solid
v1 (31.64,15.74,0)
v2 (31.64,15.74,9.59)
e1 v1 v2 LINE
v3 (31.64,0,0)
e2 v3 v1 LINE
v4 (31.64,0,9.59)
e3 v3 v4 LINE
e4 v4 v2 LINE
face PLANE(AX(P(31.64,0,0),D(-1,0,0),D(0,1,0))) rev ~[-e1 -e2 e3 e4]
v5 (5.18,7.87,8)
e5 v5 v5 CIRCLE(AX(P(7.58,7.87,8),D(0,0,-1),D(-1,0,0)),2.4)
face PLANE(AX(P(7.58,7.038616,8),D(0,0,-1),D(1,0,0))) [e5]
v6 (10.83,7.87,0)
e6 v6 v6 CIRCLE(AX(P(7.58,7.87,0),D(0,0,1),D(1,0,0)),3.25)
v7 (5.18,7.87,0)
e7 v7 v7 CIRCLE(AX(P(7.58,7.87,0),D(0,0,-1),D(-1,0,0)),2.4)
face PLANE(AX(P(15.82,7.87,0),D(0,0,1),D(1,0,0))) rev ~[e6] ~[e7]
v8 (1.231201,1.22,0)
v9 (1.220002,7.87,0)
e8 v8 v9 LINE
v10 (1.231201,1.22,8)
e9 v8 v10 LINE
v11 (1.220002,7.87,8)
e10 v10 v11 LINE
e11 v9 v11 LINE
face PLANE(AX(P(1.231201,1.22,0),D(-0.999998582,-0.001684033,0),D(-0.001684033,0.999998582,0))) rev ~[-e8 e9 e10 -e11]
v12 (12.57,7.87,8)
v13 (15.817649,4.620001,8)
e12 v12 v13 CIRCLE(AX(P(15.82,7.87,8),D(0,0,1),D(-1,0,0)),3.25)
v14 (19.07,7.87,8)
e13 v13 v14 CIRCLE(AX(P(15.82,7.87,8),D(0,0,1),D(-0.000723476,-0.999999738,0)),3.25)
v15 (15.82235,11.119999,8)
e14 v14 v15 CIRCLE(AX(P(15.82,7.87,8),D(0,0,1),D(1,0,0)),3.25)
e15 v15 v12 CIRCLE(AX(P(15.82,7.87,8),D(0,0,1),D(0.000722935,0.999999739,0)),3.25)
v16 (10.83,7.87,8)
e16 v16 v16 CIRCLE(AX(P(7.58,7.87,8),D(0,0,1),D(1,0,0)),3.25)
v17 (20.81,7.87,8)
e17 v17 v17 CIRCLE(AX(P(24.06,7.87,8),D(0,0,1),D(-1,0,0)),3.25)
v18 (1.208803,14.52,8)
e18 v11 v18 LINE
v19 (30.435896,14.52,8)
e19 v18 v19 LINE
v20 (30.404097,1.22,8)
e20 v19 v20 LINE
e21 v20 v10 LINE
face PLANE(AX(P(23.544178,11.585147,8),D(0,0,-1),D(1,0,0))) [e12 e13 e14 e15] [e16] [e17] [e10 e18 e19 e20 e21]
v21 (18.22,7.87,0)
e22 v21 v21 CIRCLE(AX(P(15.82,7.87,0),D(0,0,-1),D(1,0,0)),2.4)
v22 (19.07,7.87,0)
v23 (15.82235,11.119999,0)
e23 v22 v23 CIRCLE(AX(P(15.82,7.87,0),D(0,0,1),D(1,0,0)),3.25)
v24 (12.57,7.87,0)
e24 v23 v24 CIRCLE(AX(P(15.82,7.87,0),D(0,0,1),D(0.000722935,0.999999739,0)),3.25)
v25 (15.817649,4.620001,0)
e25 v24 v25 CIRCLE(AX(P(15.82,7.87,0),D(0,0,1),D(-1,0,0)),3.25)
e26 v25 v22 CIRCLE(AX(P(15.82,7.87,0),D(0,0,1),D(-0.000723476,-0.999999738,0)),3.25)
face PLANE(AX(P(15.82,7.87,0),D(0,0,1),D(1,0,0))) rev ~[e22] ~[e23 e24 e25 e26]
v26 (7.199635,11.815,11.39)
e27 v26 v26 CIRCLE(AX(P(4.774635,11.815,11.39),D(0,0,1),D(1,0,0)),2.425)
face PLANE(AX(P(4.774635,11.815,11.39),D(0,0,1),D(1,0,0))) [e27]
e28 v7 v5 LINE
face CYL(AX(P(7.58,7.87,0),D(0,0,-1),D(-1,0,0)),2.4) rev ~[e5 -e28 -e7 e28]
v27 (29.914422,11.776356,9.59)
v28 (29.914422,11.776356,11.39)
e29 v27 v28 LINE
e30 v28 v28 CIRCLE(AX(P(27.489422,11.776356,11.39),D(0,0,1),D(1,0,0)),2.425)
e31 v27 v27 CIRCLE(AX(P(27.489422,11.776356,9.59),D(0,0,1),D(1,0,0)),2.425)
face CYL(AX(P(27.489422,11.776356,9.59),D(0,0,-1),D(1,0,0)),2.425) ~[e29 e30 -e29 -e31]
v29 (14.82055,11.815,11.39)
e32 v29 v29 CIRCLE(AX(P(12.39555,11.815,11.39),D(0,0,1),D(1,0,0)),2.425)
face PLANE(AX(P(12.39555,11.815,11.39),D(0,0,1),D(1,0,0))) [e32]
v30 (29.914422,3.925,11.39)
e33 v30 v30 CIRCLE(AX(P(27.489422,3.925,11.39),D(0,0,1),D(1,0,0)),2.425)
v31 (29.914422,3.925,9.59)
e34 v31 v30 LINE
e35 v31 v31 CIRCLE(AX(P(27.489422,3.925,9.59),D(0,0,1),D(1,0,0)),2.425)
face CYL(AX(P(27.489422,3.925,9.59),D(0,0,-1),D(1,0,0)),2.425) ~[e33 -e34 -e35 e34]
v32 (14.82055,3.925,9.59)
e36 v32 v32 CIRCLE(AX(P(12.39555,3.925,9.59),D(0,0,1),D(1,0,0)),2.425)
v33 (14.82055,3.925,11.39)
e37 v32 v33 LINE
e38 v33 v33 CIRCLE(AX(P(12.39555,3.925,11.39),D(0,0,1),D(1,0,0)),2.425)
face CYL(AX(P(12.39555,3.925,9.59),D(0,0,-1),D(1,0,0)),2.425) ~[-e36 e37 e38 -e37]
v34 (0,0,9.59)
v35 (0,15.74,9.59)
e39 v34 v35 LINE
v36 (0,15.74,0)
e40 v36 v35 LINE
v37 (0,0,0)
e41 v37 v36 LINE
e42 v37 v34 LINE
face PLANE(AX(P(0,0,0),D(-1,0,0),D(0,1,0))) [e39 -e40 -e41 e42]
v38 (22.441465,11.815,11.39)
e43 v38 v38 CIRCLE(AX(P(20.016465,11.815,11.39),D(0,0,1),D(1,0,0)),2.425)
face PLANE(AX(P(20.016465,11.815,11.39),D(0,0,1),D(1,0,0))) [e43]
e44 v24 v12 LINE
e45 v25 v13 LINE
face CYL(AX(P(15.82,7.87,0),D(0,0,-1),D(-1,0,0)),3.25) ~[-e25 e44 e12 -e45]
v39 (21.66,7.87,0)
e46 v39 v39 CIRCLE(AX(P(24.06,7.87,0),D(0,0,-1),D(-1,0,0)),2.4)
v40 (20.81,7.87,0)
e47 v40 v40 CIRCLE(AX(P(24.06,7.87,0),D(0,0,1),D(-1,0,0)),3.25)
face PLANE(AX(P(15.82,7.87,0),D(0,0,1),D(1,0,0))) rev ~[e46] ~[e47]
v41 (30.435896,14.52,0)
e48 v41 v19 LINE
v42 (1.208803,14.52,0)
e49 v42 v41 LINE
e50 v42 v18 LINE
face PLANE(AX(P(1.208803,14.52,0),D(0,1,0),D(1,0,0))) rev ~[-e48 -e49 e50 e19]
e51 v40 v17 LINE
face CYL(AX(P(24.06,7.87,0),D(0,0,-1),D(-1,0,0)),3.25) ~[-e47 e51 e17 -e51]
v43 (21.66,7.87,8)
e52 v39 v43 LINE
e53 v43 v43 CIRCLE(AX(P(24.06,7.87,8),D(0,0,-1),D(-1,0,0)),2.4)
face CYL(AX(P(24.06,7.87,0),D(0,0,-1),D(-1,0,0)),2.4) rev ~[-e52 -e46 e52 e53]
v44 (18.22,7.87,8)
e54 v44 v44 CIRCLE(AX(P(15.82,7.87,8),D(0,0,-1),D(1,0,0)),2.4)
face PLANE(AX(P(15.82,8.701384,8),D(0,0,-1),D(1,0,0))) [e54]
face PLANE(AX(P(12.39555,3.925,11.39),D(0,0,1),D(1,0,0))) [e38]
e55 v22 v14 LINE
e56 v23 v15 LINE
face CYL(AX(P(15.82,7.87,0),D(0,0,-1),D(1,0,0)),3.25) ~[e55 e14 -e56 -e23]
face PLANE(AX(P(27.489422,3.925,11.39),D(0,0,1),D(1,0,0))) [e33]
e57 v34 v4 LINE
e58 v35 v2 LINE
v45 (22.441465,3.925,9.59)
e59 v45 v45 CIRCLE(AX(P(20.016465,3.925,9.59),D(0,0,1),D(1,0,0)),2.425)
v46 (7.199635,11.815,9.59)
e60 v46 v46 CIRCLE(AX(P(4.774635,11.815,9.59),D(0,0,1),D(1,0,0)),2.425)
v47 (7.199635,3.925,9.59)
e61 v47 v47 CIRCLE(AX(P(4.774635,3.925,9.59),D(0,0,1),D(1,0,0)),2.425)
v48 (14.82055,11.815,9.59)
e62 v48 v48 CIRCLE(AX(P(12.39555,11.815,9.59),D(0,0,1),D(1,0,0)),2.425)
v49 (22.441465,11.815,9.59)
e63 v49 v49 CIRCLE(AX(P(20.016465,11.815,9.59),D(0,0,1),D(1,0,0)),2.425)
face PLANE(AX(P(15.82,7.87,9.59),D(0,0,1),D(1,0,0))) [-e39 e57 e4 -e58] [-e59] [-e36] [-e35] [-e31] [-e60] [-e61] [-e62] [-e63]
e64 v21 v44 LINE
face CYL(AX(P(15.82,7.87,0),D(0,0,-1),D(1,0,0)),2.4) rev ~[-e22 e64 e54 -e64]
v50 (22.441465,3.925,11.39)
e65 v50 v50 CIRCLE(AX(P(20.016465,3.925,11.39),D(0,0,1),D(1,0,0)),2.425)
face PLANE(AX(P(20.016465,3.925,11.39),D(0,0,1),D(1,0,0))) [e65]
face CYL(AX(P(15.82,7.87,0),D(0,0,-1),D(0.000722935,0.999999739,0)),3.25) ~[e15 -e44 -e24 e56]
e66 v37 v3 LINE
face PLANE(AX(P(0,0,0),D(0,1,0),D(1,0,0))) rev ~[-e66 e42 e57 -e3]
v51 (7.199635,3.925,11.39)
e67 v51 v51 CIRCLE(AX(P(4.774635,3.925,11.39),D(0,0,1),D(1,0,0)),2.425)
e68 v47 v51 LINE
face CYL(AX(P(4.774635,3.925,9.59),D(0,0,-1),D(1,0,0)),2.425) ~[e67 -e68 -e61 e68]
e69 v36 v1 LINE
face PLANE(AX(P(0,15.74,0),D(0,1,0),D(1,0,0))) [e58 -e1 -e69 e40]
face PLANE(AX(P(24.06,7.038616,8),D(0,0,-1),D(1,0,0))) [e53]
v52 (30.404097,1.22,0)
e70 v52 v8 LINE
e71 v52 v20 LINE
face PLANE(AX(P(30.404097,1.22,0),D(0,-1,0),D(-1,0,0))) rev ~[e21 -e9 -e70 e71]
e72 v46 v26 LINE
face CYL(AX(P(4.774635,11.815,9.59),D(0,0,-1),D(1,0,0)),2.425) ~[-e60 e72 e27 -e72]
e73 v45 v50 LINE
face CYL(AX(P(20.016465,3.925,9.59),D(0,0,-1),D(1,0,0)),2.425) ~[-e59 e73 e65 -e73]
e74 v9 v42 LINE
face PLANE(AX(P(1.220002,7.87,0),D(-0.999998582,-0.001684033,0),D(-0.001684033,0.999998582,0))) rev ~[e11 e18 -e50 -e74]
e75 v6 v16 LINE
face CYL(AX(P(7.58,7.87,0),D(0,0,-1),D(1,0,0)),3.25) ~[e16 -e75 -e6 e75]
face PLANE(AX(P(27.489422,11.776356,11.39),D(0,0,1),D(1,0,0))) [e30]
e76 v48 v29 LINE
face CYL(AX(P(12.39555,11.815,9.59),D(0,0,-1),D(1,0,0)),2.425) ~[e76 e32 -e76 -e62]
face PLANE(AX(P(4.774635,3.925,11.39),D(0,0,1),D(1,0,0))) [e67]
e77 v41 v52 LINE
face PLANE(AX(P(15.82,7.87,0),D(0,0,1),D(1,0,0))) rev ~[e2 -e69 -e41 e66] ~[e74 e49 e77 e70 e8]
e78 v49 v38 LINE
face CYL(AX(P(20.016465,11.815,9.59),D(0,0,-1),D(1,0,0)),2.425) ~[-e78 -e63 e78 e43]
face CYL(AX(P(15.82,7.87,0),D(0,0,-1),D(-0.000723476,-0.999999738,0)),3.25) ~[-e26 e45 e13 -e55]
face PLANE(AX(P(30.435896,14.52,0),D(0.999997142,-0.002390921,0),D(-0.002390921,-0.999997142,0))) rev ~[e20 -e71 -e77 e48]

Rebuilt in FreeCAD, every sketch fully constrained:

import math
import FreeCAD as App
import Part
import Sketcher

V = App.Vector


def add_polygon(sketch, points):
    """Adds a closed chain of lines whose ends are joined by coincident constraints."""
    first, n = sketch.GeometryCount, len(points)
    for a, b in zip(points, points[1:] + points[:1]):
        sketch.addGeometry(Part.LineSegment(App.Vector(*a, 0), App.Vector(*b, 0)), False)
    for i in range(n):
        sketch.addConstraint(Sketcher.Constraint("Coincident", first + i, 2, first + (i + 1) % n, 1))

doc = App.newDocument("Part")
body = doc.addObject("PartDesign::Body", "Body")

# Sketch on XY plane
sketch1 = body.newObject("Sketcher::SketchObject", "Sketch")
sketch1.AttachmentSupport = (doc.getObject("XY_Plane"), [""])
sketch1.MapMode = "FlatFace"
add_polygon(sketch1, [(0, 15.74), (0, 0), (31.64, 0), (31.64, 15.74)])  # lines 0-3
sketch1.addConstraint([
    Sketcher.Constraint("Vertical", 0),
    Sketcher.Constraint("Horizontal", 1),
    Sketcher.Constraint("Vertical", 2),
    Sketcher.Constraint("Horizontal", 3),
    Sketcher.Constraint("Coincident", 0, 2, -1, 1),
    Sketcher.Constraint("DistanceX", 1, 1, 1, 2, 31.64),
    Sketcher.Constraint("DistanceY", 0, 2, 0, 1, 15.74),
])
pad1 = body.newObject("PartDesign::Pad", "Pad")
pad1.Profile = sketch1
pad1.Length = 9.59

# Sketch on XY plane
sketch2 = body.newObject("Sketcher::SketchObject", "Sketch001")
sketch2.AttachmentSupport = (doc.getObject("XY_Plane"), [""])
sketch2.MapMode = "FlatFace"
sketch2.AttachmentOffset = App.Placement(V(0, 0, 9.59), App.Rotation())
sketch2.addGeometry([
    Part.Circle(V(4.774635, 11.815, 0), V(0, 0, 1), 2.425),  # 0
    Part.Circle(V(12.39555, 11.815, 0), V(0, 0, 1), 2.425),  # 1
    Part.Circle(V(20.016465, 11.815, 0), V(0, 0, 1), 2.425),  # 2
    Part.Circle(V(27.489422, 11.776356, 0), V(0, 0, 1), 2.425),  # 3
    Part.Circle(V(4.774635, 3.925, 0), V(0, 0, 1), 2.425),  # 4
    Part.Circle(V(12.39555, 3.925, 0), V(0, 0, 1), 2.425),  # 5
    Part.Circle(V(20.016465, 3.925, 0), V(0, 0, 1), 2.425),  # 6
    Part.Circle(V(27.489422, 3.925, 0), V(0, 0, 1), 2.425),  # 7
], False)
sketch2.addConstraint([
    Sketcher.Constraint("Equal", 0, 1),
    Sketcher.Constraint("Equal", 1, 2),
    Sketcher.Constraint("Equal", 2, 3),
    Sketcher.Constraint("Equal", 3, 4),
    Sketcher.Constraint("Equal", 4, 5),
    Sketcher.Constraint("Equal", 5, 6),
    Sketcher.Constraint("Equal", 6, 7),
    Sketcher.Constraint("Horizontal", 0, 3, 1, 3),
    Sketcher.Constraint("Horizontal", 1, 3, 2, 3),
    Sketcher.Constraint("Horizontal", 4, 3, 5, 3),
    Sketcher.Constraint("Horizontal", 5, 3, 6, 3),
    Sketcher.Constraint("Horizontal", 6, 3, 7, 3),
    Sketcher.Constraint("Vertical", 0, 3, 4, 3),
    Sketcher.Constraint("Vertical", 1, 3, 5, 3),
    Sketcher.Constraint("Vertical", 2, 3, 6, 3),
    Sketcher.Constraint("Vertical", 3, 3, 7, 3),
    Sketcher.Constraint("Diameter", 0, 4.85),
    Sketcher.Constraint("DistanceY", 4, 3, 0, 3, 7.89),
    Sketcher.Constraint("DistanceY", -1, 1, 0, 3, 11.815),
    Sketcher.Constraint("DistanceX", -1, 1, 1, 3, 12.39555),
    Sketcher.Constraint("DistanceX", -1, 1, 3, 3, 27.489422),
    Sketcher.Constraint("DistanceX", 0, 3, 2, 3, 15.24183),
    Sketcher.Constraint("DistanceX", -1, 1, 0, 3, 4.774635),
    Sketcher.Constraint("DistanceY", -1, 1, 3, 3, 11.776356),
])
pad2 = body.newObject("PartDesign::Pad", "Pad001")
pad2.Profile = sketch2
pad2.Length = 1.8

# Sketch on XY plane
sketch3 = body.newObject("Sketcher::SketchObject", "Sketch002")
sketch3.AttachmentSupport = (doc.getObject("XY_Plane"), [""])
sketch3.MapMode = "FlatFace"
add_polygon(sketch3, [(30.435896, 14.52), (30.404097, 1.22), (1.231201, 1.22), (1.220002, 7.87), (1.208803, 14.52)])  # lines 0-4
sketch3.addGeometry(Part.ArcOfCircle(Part.Circle(V(15.82, 7.87, 0), V(0, 0, 1), 3.25), math.radians(0), math.radians(89.958579)), False)  # 5
sketch3.addGeometry(Part.ArcOfCircle(Part.Circle(V(15.82, 7.87, 0), V(0, 0, 1), 3.25), math.radians(89.958579), math.radians(180)), False)  # 6
sketch3.addGeometry(Part.ArcOfCircle(Part.Circle(V(15.82, 7.87, 0), V(0, 0, 1), 3.25), math.radians(180), math.radians(269.958548)), False)  # 7
sketch3.addGeometry(Part.ArcOfCircle(Part.Circle(V(15.82, 7.87, 0), V(0, 0, 1), 3.25), math.radians(-90.041452), math.radians(0)), False)  # 8
sketch3.addGeometry(Part.Circle(V(7.58, 7.87, 0), V(0, 0, 1), 3.25), False)  # 9
sketch3.addGeometry(Part.Circle(V(24.06, 7.87, 0), V(0, 0, 1), 3.25), False)  # 10
sketch3.addGeometry(Part.Circle(V(7.58, 7.87, 0), V(0, 0, 1), 2.4), False)  # 11
sketch3.addGeometry(Part.Circle(V(15.82, 7.87, 0), V(0, 0, 1), 2.4), False)  # 12
sketch3.addGeometry(Part.Circle(V(24.06, 7.87, 0), V(0, 0, 1), 2.4), False)  # 13
sketch3.addConstraint([
    Sketcher.Constraint("Tangent", 5, 2, 6, 1),
    Sketcher.Constraint("Tangent", 6, 2, 7, 1),
    Sketcher.Constraint("Tangent", 7, 2, 8, 1),
    Sketcher.Constraint("Tangent", 8, 2, 5, 1),
    Sketcher.Constraint("Horizontal", 1),
    Sketcher.Constraint("Horizontal", 4),
    Sketcher.Constraint("Coincident", 11, 3, 9, 3),
    Sketcher.Constraint("Coincident", 12, 3, 5, 3),
    Sketcher.Constraint("Coincident", 13, 3, 10, 3),
    Sketcher.Constraint("Equal", 5, 6),
    Sketcher.Constraint("Equal", 8, 9),
    Sketcher.Constraint("Equal", 9, 10),
    Sketcher.Constraint("Equal", 11, 12),
    Sketcher.Constraint("Equal", 12, 13),
    Sketcher.Constraint("Parallel", 2, 3),
    Sketcher.Constraint("Horizontal", 8, 3, 9, 3),
    Sketcher.Constraint("Horizontal", 9, 3, 10, 3),
    Sketcher.Constraint("Horizontal", 13, 3, 2, 2),
    Sketcher.Constraint("Horizontal", 2, 2, 6, 2),
    Sketcher.Constraint("Horizontal", 6, 2, 8, 2),
    Sketcher.Constraint("Equal", 2, 3),
    Sketcher.Constraint("Diameter", 9, 6.5),
    Sketcher.Constraint("Diameter", 11, 4.8),
    Sketcher.Constraint("DistanceX", 2, 2, 5, 3, 14.599998),
    Sketcher.Constraint("DistanceY", 1, 2, 3, 2, 13.3),
    Sketcher.Constraint("DistanceX", -1, 1, 5, 3, 15.82),
    Sketcher.Constraint("DistanceY", -1, 1, 5, 3, 7.87),
    Sketcher.Constraint("DistanceX", -1, 1, 9, 3, 7.58),
    Sketcher.Constraint("DistanceX", -1, 1, 10, 3, 24.06),
    Sketcher.Constraint("DistanceX", -1, 1, 1, 2, 1.231201),
    Sketcher.Constraint("DistanceX", 0, 2, 4, 2, 0.031799),
    Sketcher.Constraint("DistanceX", 1, 2, 1, 1, 29.172896),
    Sketcher.Constraint("DistanceX", -1, 1, 5, 2, 15.82235),
    Sketcher.Constraint("DistanceX", -1, 1, 7, 2, 15.817649),
])
pocket1 = body.newObject("PartDesign::Pocket", "Pocket")
pocket1.Profile = sketch3
pocket1.Length = 8
pocket1.Reversed = True

doc.recompute()
